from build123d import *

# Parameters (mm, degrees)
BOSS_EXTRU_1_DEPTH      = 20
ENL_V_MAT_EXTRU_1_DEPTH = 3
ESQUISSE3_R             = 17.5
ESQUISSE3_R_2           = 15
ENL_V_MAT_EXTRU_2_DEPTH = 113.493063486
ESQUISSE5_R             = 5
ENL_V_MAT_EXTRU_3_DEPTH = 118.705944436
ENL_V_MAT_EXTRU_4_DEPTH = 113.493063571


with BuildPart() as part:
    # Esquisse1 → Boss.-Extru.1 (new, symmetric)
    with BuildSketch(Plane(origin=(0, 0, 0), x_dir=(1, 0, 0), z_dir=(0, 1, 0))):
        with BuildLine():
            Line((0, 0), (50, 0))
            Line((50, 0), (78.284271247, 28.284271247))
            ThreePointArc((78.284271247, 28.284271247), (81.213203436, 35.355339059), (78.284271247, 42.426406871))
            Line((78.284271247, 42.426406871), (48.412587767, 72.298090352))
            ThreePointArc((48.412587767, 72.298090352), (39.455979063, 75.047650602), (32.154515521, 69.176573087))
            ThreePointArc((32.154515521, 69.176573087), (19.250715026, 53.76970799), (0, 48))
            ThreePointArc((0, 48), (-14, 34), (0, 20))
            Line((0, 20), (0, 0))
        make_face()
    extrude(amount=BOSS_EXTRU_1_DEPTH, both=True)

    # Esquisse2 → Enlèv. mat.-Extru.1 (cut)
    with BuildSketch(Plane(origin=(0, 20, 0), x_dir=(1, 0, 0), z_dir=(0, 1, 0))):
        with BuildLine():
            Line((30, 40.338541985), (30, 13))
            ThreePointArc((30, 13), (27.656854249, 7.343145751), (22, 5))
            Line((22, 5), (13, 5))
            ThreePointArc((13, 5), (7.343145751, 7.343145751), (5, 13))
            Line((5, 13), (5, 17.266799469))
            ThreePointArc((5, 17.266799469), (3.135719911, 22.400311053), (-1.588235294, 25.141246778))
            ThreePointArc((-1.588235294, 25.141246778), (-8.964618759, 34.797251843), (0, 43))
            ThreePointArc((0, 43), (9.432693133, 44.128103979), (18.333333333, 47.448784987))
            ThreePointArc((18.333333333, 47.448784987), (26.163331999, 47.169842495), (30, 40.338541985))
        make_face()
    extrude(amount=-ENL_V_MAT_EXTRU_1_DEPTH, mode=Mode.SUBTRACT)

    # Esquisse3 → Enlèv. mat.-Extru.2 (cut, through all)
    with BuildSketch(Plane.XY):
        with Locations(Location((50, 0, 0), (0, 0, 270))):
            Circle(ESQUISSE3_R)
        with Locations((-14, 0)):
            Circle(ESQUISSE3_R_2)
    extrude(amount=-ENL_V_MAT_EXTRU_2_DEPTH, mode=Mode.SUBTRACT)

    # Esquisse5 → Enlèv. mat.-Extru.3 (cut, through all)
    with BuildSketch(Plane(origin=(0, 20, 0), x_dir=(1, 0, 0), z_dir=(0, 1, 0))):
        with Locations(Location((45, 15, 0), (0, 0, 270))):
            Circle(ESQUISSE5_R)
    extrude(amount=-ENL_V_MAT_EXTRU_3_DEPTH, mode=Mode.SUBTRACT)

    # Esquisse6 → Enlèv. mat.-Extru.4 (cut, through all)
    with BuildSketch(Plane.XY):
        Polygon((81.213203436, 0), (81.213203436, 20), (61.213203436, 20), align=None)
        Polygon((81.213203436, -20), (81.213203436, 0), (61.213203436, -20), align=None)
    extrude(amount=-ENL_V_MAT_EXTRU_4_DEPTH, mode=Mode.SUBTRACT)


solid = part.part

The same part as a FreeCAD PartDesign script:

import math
import FreeCAD as App
import Part
import Sketcher
from FreeCAD import Vector
Q = App.Units.Quantity


def add_polygon(sketch, points):
    """Adds a closed chain of lines whose ends are joined by coincident constraints."""
    first, n = sketch.GeometryCount, len(points)
    for a, b in zip(points, points[1:] + points[:1]):
        sketch.addGeometry(Part.LineSegment(App.Vector(*a, 0), App.Vector(*b, 0)), False)
    for i in range(n):
        sketch.addConstraint(Sketcher.Constraint("Coincident", first + i, 2, first + (i + 1) % n, 1))

doc = App.newDocument("Part")
body = doc.addObject("PartDesign::Body", "Body")

sketch1 = doc.addObject("Sketcher::SketchObject", "Sketch")
body.addObject(sketch1)
sketch1.AttachmentSupport = (doc.XZ_Plane, [""])
sketch1.MapMode = "FlatFace"
sketch1.addGeometry([
    Part.LineSegment(Vector(0, 0, 0), Vector(50, 0, 0)),
    Part.LineSegment(Vector(50, 0, 0), Vector(78.284271, -28.284271, 0)),
    Part.ArcOfCircle(Part.Circle(Vector(71.213203, -35.355339, 0), Vector(0, 0, 1), 10), math.radians(-45), math.radians(45)),
    Part.LineSegment(Vector(78.284271, -42.426407, 0), Vector(48.412588, -72.29809, 0)),
    Part.ArcOfCircle(Part.Circle(Vector(41.34152, -65.227023, 0), Vector(0, 0, 1), 10), math.radians(-156.736829), math.radians(-45)),
    Part.ArcOfCircle(Part.Circle(Vector(0, -83, 0), Vector(0, 0, 1), 35), math.radians(23.263171), math.radians(90)),
    Part.ArcOfCircle(Part.Circle(Vector(0, -34, 0), Vector(0, 0, 1), 14), math.radians(90), math.radians(270)),
    Part.LineSegment(Vector(0, -20, 0), Vector(0, 0, 0)),
], False)
sketch1.addConstraint([
    Sketcher.Constraint("Coincident", 0, 2, 1, 1),
    Sketcher.Constraint("Tangent", 1, 2, 2, 2),
    Sketcher.Constraint("Tangent", 2, 1, 3, 1),
    Sketcher.Constraint("Tangent", 3, 2, 4, 2),
    Sketcher.Constraint("Tangent", 4, 1, 5, 1),
    Sketcher.Constraint("Tangent", 5, 2, 6, 2),
    Sketcher.Constraint("Coincident", 6, 1, 7, 1),
    Sketcher.Constraint("Coincident", 7, 2, 0, 1),
    Sketcher.Constraint("Horizontal", 0),
    Sketcher.Constraint("Vertical", 7),
    Sketcher.Constraint("Coincident", 7, 2, -1, 1),
    Sketcher.Constraint("Equal", 2, 4),
    Sketcher.Constraint("PointOnObject", 5, 3, -2),
    Sketcher.Constraint("PointOnObject", 6, 3, -2),
    Sketcher.Constraint("Perpendicular", 1, 3),
    Sketcher.Constraint("Vertical", 1, 2, 2, 1),
    Sketcher.Constraint("Radius", 2, Q("10 mm")),
    Sketcher.Constraint("Radius", 5, Q("35 mm")),
    Sketcher.Constraint("Radius", 6, Q("14 mm")),
    Sketcher.Constraint("DistanceX", 0, 1, 0, 2, Q("50 mm")),
    Sketcher.Constraint("DistanceY", 7, 1, 7, 2, Q("20 mm")),
    Sketcher.Constraint("Distance", 1, Q("40 mm")),
])
pad1 = doc.addObject("PartDesign::Pad", "Pad")
body.addObject(pad1)
pad1.Profile = sketch1
pad1.Length = 40
pad1.Midplane = True

sketch2 = doc.addObject("Sketcher::SketchObject", "Sketch001")
body.addObject(sketch2)
sketch2.AttachmentSupport = (doc.XZ_Plane, [""])
sketch2.MapMode = "FlatFace"
sketch2.AttachmentOffset = App.Placement(Vector(0, 0, -20), App.Rotation())
sketch2.addGeometry([
    Part.LineSegment(Vector(30, -13, 0), Vector(30, -40.338542, 0)),
    Part.ArcOfCircle(Part.Circle(Vector(22, -40.338542, 0), Vector(0, 0, 1), 8), math.radians(-117.279613), math.radians(0)),
    Part.ArcOfCircle(Part.Circle(Vector(0, -83, 0), Vector(0, 0, 1), 40), math.radians(62.720387), math.radians(90)),
    Part.ArcOfCircle(Part.Circle(Vector(0, -34, 0), Vector(0, 0, 1), 9), math.radians(100.164249), math.radians(270)),
    Part.ArcOfCircle(Part.Circle(Vector(-3, -17.266799, 0), Vector(0, 0, 1), 8), math.radians(-79.835751), math.radians(0)),
    Part.LineSegment(Vector(5, -17.266799, 0), Vector(5, -13, 0)),
    Part.ArcOfCircle(Part.Circle(Vector(13, -13, 0), Vector(0, 0, 1), 8), math.radians(90), math.radians(180)),
    Part.LineSegment(Vector(13, -5, 0), Vector(22, -5, 0)),
    Part.ArcOfCircle(Part.Circle(Vector(22, -13, 0), Vector(0, 0, 1), 8), math.radians(0), math.radians(90)),
], False)
sketch2.addConstraint([
    Sketcher.Constraint("Tangent", 0, 2, 1, 2),
    Sketcher.Constraint("Tangent", 1, 1, 2, 1),
    Sketcher.Constraint("Tangent", 2, 2, 3, 2),
    Sketcher.Constraint("Tangent", 3, 1, 4, 1),
    Sketcher.Constraint("Tangent", 4, 2, 5, 1),
    Sketcher.Constraint("Tangent", 5, 2, 6, 2),
    Sketcher.Constraint("Tangent", 6, 1, 7, 1),
    Sketcher.Constraint("Tangent", 7, 2, 8, 2),
    Sketcher.Constraint("Tangent", 8, 1, 0, 1),
    Sketcher.Constraint("Vertical", 0),
    Sketcher.Constraint("Vertical", 5),
    Sketcher.Constraint("Horizontal", 7),
    Sketcher.Constraint("Equal", 1, 4),
    Sketcher.Constraint("Equal", 4, 6),
    Sketcher.Constraint("Equal", 6, 8),
    Sketcher.Constraint("PointOnObject", 2, 3, -2),
    Sketcher.Constraint("PointOnObject", 3, 3, -2),
    Sketcher.Constraint("Radius", 1, Q("8 mm")),
    Sketcher.Constraint("Radius", 2, Q("40 mm")),
    Sketcher.Constraint("Radius", 3, Q("9 mm")),
    Sketcher.Constraint("DistanceX", 7, 1, 7, 2, Q("9 mm")),
    Sketcher.Constraint("DistanceX", -1, 1, 1, 3, Q("22 mm")),
    Sketcher.Constraint("DistanceY", 2, 3, -1, 1, Q("83 mm")),
    Sketcher.Constraint("DistanceY", 6, 3, -1, 1, Q("13 mm")),
])
pocket1 = doc.addObject("PartDesign::Pocket", "Pocket")
body.addObject(pocket1)
pocket1.Profile = sketch2
pocket1.Length = 3
pocket1.Reversed = True

sketch3 = doc.addObject("Sketcher::SketchObject", "Sketch002")
body.addObject(sketch3)
sketch3.AttachmentSupport = (doc.XY_Plane, [""])
sketch3.MapMode = "FlatFace"
sketch3.addGeometry([
    Part.Circle(Vector(50, 0, 0), Vector(0, 0, 1), 17.5),
    Part.Circle(Vector(-14, 0, 0), Vector(0, 0, 1), 15),
], False)
sketch3.addConstraint([
    Sketcher.Constraint("PointOnObject", 0, 3, -1),
    Sketcher.Constraint("PointOnObject", 1, 3, -1),
    Sketcher.Constraint("Diameter", 0, Q("35 mm")),
    Sketcher.Constraint("Diameter", 1, Q("30 mm")),
    Sketcher.Constraint("DistanceX", -1, 1, 0, 3, Q("50 mm")),
    Sketcher.Constraint("DistanceX", 1, 3, -1, 1, Q("14 mm")),
])
pocket2 = doc.addObject("PartDesign::Pocket", "Pocket001")
body.addObject(pocket2)
pocket2.Profile = sketch3
pocket2.Type = "ThroughAll"

sketch4 = doc.addObject("Sketcher::SketchObject", "Sketch003")
body.addObject(sketch4)
sketch4.AttachmentSupport = (doc.XZ_Plane, [""])
sketch4.MapMode = "FlatFace"
sketch4.AttachmentOffset = App.Placement(Vector(0, 0, -20), App.Rotation())
sketch4.addGeometry(Part.Circle(Vector(45, -15, 0), Vector(0, 0, 1), 5), False)
sketch4.addConstraint([
    Sketcher.Constraint("Diameter", 0, Q("10 mm")),
    Sketcher.Constraint("DistanceX", -1, 1, 0, 3, Q("45 mm")),
    Sketcher.Constraint("DistanceY", 0, 3, -1, 1, Q("15 mm")),
])
pocket3 = doc.addObject("PartDesign::Pocket", "Pocket002")
body.addObject(pocket3)
pocket3.Profile = sketch4
pocket3.Type = "ThroughAll"
pocket3.Reversed = True

sketch5 = doc.addObject("Sketcher::SketchObject", "Sketch004")
body.addObject(sketch5)
sketch5.AttachmentSupport = (doc.XY_Plane, [""])
sketch5.MapMode = "FlatFace"
add_polygon(sketch5, [(81.213203, 0), (81.213203, 20), (61.213203, 20)])
add_polygon(sketch5, [(81.213203, -20), (81.213203, 0), (61.213203, -20)])
sketch5.addConstraint([
    Sketcher.Constraint("Vertical", 0),
    Sketcher.Constraint("Horizontal", 1),
    Sketcher.Constraint("Vertical", 3),
    Sketcher.Constraint("Horizontal", 5),
    Sketcher.Constraint("Coincident", 3, 2, 2, 2),
    Sketcher.Constraint("Symmetric", 1, 2, 4, 2, -1),
    Sketcher.Constraint("PointOnObject", 2, 2, -1),
    Sketcher.Constraint("Perpendicular", 2, 4),
    Sketcher.Constraint("DistanceX", 1, 2, 1, 1, Q("20 mm")),
    Sketcher.Constraint("DistanceX", -1, 1, 0, 2, Q("81.213203 mm")),
])
pocket4 = doc.addObject("PartDesign::Pocket", "Pocket003")
body.addObject(pocket4)
pocket4.Profile = sketch5
pocket4.Type = "ThroughAll"

doc.recompute()
